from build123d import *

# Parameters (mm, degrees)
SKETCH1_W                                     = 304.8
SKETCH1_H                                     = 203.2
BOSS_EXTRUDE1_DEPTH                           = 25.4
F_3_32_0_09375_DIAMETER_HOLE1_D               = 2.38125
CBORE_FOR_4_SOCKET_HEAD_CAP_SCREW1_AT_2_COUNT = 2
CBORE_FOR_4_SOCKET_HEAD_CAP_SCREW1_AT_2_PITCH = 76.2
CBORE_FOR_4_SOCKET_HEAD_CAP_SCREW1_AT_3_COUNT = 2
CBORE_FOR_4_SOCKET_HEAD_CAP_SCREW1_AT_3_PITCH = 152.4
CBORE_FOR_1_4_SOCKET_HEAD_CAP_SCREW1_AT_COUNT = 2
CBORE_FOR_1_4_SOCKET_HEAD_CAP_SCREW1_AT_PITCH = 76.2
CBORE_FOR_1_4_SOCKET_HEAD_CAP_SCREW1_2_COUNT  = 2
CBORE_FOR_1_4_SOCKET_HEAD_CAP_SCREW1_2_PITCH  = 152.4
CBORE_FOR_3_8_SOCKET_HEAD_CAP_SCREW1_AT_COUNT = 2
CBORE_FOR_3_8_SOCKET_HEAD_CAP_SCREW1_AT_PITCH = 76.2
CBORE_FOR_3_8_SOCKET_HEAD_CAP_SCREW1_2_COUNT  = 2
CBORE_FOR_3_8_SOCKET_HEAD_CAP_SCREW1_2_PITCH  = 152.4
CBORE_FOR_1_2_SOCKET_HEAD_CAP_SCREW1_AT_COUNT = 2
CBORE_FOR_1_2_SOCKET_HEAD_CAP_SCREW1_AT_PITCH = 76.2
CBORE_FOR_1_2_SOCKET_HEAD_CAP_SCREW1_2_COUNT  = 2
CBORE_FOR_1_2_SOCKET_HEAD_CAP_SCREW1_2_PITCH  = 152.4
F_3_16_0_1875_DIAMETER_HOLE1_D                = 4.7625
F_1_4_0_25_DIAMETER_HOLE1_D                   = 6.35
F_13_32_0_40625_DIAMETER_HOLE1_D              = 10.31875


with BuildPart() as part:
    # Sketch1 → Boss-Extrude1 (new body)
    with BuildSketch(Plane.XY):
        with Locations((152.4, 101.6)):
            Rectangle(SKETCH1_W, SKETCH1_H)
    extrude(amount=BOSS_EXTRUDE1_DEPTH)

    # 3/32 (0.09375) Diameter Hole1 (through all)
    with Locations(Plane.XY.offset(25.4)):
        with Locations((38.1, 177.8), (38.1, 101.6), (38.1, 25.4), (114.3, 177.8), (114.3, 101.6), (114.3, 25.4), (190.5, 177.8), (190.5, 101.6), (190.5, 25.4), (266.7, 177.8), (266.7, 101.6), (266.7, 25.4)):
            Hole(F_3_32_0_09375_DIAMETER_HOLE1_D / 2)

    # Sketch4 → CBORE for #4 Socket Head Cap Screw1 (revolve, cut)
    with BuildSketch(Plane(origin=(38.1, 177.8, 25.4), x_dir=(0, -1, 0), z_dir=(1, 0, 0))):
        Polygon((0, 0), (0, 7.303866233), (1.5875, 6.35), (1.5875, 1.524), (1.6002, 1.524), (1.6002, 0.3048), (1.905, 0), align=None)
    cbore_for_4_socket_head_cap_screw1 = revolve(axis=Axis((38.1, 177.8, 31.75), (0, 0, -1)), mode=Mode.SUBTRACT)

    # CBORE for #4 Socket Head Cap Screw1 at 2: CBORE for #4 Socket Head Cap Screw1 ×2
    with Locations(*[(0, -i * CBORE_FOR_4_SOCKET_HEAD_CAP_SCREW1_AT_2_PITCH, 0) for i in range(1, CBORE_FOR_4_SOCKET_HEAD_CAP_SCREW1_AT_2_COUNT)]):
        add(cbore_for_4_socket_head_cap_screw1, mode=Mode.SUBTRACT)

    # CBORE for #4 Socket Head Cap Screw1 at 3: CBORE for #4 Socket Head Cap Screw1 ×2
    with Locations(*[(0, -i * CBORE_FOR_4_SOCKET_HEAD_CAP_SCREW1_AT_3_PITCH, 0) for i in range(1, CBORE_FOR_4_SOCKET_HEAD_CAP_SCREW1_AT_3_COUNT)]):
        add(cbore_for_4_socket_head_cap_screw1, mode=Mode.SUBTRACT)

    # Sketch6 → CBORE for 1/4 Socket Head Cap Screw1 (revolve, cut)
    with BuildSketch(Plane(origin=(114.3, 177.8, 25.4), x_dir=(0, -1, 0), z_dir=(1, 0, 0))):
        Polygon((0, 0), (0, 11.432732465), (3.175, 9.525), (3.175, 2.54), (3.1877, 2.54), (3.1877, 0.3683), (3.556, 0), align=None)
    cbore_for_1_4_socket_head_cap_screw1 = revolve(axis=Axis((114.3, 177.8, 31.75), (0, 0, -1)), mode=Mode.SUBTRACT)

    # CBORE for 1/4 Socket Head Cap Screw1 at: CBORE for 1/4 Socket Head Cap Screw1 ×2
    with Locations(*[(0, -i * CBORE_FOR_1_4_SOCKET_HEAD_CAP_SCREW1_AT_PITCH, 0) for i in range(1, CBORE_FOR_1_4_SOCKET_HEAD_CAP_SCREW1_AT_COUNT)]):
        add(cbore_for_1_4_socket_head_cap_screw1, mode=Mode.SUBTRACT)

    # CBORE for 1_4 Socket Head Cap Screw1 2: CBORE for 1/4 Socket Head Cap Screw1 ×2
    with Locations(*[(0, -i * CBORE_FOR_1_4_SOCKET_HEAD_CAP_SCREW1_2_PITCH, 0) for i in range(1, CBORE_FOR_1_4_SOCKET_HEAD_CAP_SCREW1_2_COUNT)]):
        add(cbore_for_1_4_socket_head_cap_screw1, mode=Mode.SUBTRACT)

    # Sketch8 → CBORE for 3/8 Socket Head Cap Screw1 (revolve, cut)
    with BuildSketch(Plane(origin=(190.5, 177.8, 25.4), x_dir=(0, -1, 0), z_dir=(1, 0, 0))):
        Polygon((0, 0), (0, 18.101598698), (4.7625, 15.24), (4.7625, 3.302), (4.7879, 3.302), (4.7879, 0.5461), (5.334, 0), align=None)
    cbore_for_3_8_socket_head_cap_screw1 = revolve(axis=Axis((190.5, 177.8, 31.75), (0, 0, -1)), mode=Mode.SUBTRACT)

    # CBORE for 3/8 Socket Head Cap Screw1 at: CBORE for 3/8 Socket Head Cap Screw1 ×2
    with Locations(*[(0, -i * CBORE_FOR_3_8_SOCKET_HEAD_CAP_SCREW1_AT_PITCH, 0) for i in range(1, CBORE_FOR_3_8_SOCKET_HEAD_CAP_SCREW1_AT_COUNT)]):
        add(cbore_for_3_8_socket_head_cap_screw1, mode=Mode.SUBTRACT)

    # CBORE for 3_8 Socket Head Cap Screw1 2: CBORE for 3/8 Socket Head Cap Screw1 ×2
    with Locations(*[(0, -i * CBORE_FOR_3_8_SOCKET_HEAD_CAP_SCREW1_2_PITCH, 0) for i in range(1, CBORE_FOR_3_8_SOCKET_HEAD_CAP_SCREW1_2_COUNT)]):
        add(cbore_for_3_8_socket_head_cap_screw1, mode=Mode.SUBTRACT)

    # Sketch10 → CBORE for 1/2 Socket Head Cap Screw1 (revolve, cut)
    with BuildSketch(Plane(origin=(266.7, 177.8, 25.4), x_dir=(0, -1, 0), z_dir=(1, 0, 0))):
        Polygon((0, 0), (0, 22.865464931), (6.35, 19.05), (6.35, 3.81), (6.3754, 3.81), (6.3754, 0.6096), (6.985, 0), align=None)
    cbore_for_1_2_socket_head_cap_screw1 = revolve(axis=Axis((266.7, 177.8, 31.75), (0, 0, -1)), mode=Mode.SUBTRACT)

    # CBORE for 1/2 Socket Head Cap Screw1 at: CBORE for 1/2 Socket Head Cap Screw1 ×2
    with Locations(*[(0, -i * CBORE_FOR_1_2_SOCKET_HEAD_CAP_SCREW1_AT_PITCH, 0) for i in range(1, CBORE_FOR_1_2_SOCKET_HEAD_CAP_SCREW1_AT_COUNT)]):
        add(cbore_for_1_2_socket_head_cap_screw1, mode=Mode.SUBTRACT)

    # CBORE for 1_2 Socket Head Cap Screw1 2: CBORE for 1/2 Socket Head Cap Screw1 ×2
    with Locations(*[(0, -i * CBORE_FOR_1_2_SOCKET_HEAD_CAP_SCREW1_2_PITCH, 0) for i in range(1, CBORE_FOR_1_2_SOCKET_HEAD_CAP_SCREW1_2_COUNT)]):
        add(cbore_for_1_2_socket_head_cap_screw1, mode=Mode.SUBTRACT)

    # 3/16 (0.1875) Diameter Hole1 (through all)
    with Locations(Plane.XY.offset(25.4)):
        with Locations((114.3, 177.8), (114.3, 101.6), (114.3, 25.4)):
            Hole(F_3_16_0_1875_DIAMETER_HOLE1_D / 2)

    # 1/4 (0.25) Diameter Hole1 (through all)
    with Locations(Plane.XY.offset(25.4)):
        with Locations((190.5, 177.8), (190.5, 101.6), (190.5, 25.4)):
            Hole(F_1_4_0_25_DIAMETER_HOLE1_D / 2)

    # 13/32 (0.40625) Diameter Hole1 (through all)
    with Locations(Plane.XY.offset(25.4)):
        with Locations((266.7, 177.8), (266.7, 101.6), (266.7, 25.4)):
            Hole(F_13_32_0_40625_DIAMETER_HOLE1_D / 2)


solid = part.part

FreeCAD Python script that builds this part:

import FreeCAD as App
import Part
import Sketcher
from FreeCAD import Vector
Q = App.Units.Quantity


def add_polygon(sketch, points):
    """Adds a closed chain of lines whose ends are joined by coincident constraints."""
    first, n = sketch.GeometryCount, len(points)
    for a, b in zip(points, points[1:] + points[:1]):
        sketch.addGeometry(Part.LineSegment(App.Vector(*a, 0), App.Vector(*b, 0)), False)
    for i in range(n):
        sketch.addConstraint(Sketcher.Constraint("Coincident", first + i, 2, first + (i + 1) % n, 1))

doc = App.newDocument("Part")
body = doc.addObject("PartDesign::Body", "Body")

# Sketch on XY plane
sketch1 = body.newObject("Sketcher::SketchObject", "Sketch")
sketch1.AttachmentSupport = (doc.getObject("XY_Plane"), [""])
sketch1.MapMode = "FlatFace"
add_polygon(sketch1, [(0, 203), (0, 0), (305, 0), (305, 203)])  # lines 0-3
sketch1.addConstraint(Sketcher.Constraint("Vertical", 0))
sketch1.addConstraint(Sketcher.Constraint("Horizontal", 1))
sketch1.addConstraint(Sketcher.Constraint("Vertical", 2))
sketch1.addConstraint(Sketcher.Constraint("Horizontal", 3))
sketch1.addConstraint(Sketcher.Constraint("Coincident", 0, 2, -1, 1))
sketch1.addConstraint(Sketcher.Constraint("DistanceX", 1, 1, 1, 2, Q("12 in")))
sketch1.addConstraint(Sketcher.Constraint("DistanceY", 0, 2, 0, 1, Q("8 in")))
pad1 = body.newObject("PartDesign::Pad", "Pad")
pad1.Profile = sketch1
pad1.Length = Q("1 in")

# Sketch on XY plane
sketch2 = body.newObject("Sketcher::SketchObject", "Sketch001")
sketch2.AttachmentSupport = (doc.getObject("XY_Plane"), [""])
sketch2.MapMode = "FlatFace"
sketch2.AttachmentOffset = App.Placement(Vector(0, 0, 1 * 25.4), App.Rotation())
sketch2.addGeometry(Part.Circle(Vector(38.1, 177.8, 0), Vector(0, 0, 1), 1.2), False)
sketch2.addGeometry(Part.Circle(Vector(38.1, 101.6, 0), Vector(0, 0, 1), 1.2), False)
sketch2.addGeometry(Part.Circle(Vector(38.1, 25.4, 0), Vector(0, 0, 1), 1.2), False)
sketch2.addGeometry(Part.Circle(Vector(114.3, 177.8, 0), Vector(0, 0, 1), 1.2), False)
sketch2.addGeometry(Part.Circle(Vector(114.3, 101.6, 0), Vector(0, 0, 1), 1.2), False)
sketch2.addGeometry(Part.Circle(Vector(114.3, 25.4, 0), Vector(0, 0, 1), 1.2), False)
sketch2.addGeometry(Part.Circle(Vector(190.5, 177.8, 0), Vector(0, 0, 1), 1.2), False)
sketch2.addGeometry(Part.Circle(Vector(190.5, 101.6, 0), Vector(0, 0, 1), 1.2), False)
sketch2.addGeometry(Part.Circle(Vector(190.5, 25.4, 0), Vector(0, 0, 1), 1.2), False)
sketch2.addGeometry(Part.Circle(Vector(266.7, 177.8, 0), Vector(0, 0, 1), 1.2), False)
sketch2.addGeometry(Part.Circle(Vector(266.7, 101.6, 0), Vector(0, 0, 1), 1.2), False)
sketch2.addGeometry(Part.Circle(Vector(266.7, 25.4, 0), Vector(0, 0, 1), 1.2), False)
sketch2.addConstraint(Sketcher.Constraint("Equal", 0, 1))
sketch2.addConstraint(Sketcher.Constraint("Equal", 1, 2))
sketch2.addConstraint(Sketcher.Constraint("Equal", 2, 3))
sketch2.addConstraint(Sketcher.Constraint("Equal", 3, 4))
sketch2.addConstraint(Sketcher.Constraint("Equal", 4, 5))
sketch2.addConstraint(Sketcher.Constraint("Equal", 5, 6))
sketch2.addConstraint(Sketcher.Constraint("Equal", 6, 7))
sketch2.addConstraint(Sketcher.Constraint("Equal", 7, 8))
sketch2.addConstraint(Sketcher.Constraint("Equal", 8, 9))
sketch2.addConstraint(Sketcher.Constraint("Equal", 9, 10))
sketch2.addConstraint(Sketcher.Constraint("Equal", 10, 11))
sketch2.addConstraint(Sketcher.Constraint("Horizontal", 0, 3, 3, 3))
sketch2.addConstraint(Sketcher.Constraint("Horizontal", 1, 3, 4, 3))
sketch2.addConstraint(Sketcher.Constraint("Horizontal", 2, 3, 5, 3))
sketch2.addConstraint(Sketcher.Constraint("Horizontal", 3, 3, 6, 3))
sketch2.addConstraint(Sketcher.Constraint("Horizontal", 4, 3, 7, 3))
sketch2.addConstraint(Sketcher.Constraint("Horizontal", 5, 3, 8, 3))
sketch2.addConstraint(Sketcher.Constraint("Horizontal", 6, 3, 9, 3))
sketch2.addConstraint(Sketcher.Constraint("Horizontal", 7, 3, 10, 3))
sketch2.addConstraint(Sketcher.Constraint("Horizontal", 8, 3, 11, 3))
sketch2.addConstraint(Sketcher.Constraint("Vertical", 0, 3, 1, 3))
sketch2.addConstraint(Sketcher.Constraint("Vertical", 1, 3, 2, 3))
sketch2.addConstraint(Sketcher.Constraint("Vertical", 3, 3, 4, 3))
sketch2.addConstraint(Sketcher.Constraint("Vertical", 4, 3, 5, 3))
sketch2.addConstraint(Sketcher.Constraint("Vertical", 6, 3, 7, 3))
sketch2.addConstraint(Sketcher.Constraint("Vertical", 7, 3, 8, 3))
sketch2.addConstraint(Sketcher.Constraint("Vertical", 9, 3, 10, 3))
sketch2.addConstraint(Sketcher.Constraint("Vertical", 10, 3, 11, 3))
sketch2.addConstraint(Sketcher.Constraint("Diameter", 0, Q("0.09375 in")))
sketch2.addConstraint(Sketcher.Constraint("DistanceY", -1, 1, 0, 3, Q("7 in")))
sketch2.addConstraint(Sketcher.Constraint("DistanceY", -1, 1, 1, 3, Q("4 in")))
sketch2.addConstraint(Sketcher.Constraint("DistanceY", -1, 1, 2, 3, Q("1 in")))
sketch2.addConstraint(Sketcher.Constraint("DistanceX", 0, 3, 3, 3, Q("3 in")))
sketch2.addConstraint(Sketcher.Constraint("DistanceX", 3, 3, 6, 3, Q("3 in")))
sketch2.addConstraint(Sketcher.Constraint("DistanceX", 6, 3, 9, 3, Q("3 in")))
sketch2.addConstraint(Sketcher.Constraint("DistanceX", -1, 1, 0, 3, Q("1.5 in")))
doc.recompute()
hole = body.newObject("PartDesign::Hole", "Hole")
hole.Profile = sketch2
hole.ThreadType = "None"
hole.Diameter = Q("0.09375 in")
hole.DepthType = "ThroughAll"

# Sketch on YZ plane
sketch3 = body.newObject("Sketcher::SketchObject", "Sketch002")
sketch3.AttachmentSupport = (doc.getObject("YZ_Plane"), [""])
sketch3.MapMode = "FlatFace"
sketch3.AttachmentOffset = App.Placement(Vector(0, 0, 1.5 * 25.4), App.Rotation())
add_polygon(sketch3, [(177.8, 18.096), (177.8, 25.4), (175.895, 25.4), (176.2, 25.095), (176.2, 23.876), (176.213, 23.876), (176.213, 19.05)])  # lines 0-6
sketch3.addGeometry(Part.LineSegment(Vector(177.8, 25.4, 0), Vector(177.8, 18.096, 0)), True)  # axis
sketch3.addConstraint(Sketcher.Constraint("Vertical", 0))
sketch3.addConstraint(Sketcher.Constraint("Horizontal", 1))
sketch3.addConstraint(Sketcher.Constraint("Vertical", 3))
sketch3.addConstraint(Sketcher.Constraint("Horizontal", 4))
sketch3.addConstraint(Sketcher.Constraint("Vertical", 5))
sketch3.addConstraint(Sketcher.Constraint("Vertical", 7))
sketch3.addConstraint(Sketcher.Constraint("Coincident", 7, 1, 0, 2))
sketch3.addConstraint(Sketcher.Constraint("Equal", 0, 7))
sketch3.addConstraint(Sketcher.Constraint("DistanceX", -1, 1, 0, 2, Q("7 in")))
sketch3.addConstraint(Sketcher.Constraint("DistanceY", -1, 1, 0, 2, Q("1 in")))
sketch3.addConstraint(Sketcher.Constraint("Angle", 2, Q("-45 deg")))
sketch3.addConstraint(Sketcher.Constraint("Angle", 6, Q("-31 deg")))
sketch3.addConstraint(Sketcher.Constraint("DistanceY", 5, 2, 5, 1, Q("0.19 in")))
sketch3.addConstraint(Sketcher.Constraint("DistanceX", 1, 2, 1, 1, Q("0.075 in")))
sketch3.addConstraint(Sketcher.Constraint("DistanceY", 3, 2, 3, 1, Q("0.048 in")))
sketch3.addConstraint(Sketcher.Constraint("DistanceY", -1, 1, 3, 2, Q("0.94 in")))
sketch3.addConstraint(Sketcher.Constraint("DistanceX", 4, 1, 4, 2, Q("0.0005 in")))
groove = body.newObject("PartDesign::Groove", "Groove")
groove.Profile = sketch3
groove.ReferenceAxis = (sketch3, ["Axis0"])
groove.Angle = 360
doc.recompute()

linearpattern = body.newObject("PartDesign::LinearPattern", "LinearPattern")
linearpattern.Originals = [groove]
linearpattern.Direction = (doc.getObject("Y_Axis"), [""])
linearpattern.Mode = "offset"
linearpattern.Offset = Q("3 in")
linearpattern.Occurrences = 2
linearpattern.Reversed = True
body.Tip = linearpattern
doc.recompute()

linearpattern2 = body.newObject("PartDesign::LinearPattern", "LinearPattern001")
linearpattern2.Originals = [groove]
linearpattern2.Direction = (doc.getObject("Y_Axis"), [""])
linearpattern2.Mode = "offset"
linearpattern2.Offset = Q("6 in")
linearpattern2.Occurrences = 2
linearpattern2.Reversed = True
body.Tip = linearpattern2

# Sketch on YZ plane
sketch4 = body.newObject("Sketcher::SketchObject", "Sketch003")
sketch4.AttachmentSupport = (doc.getObject("YZ_Plane"), [""])
sketch4.MapMode = "FlatFace"
sketch4.AttachmentOffset = App.Placement(Vector(0, 0, 4.5 * 25.4), App.Rotation())
add_polygon(sketch4, [(177.8, 13.967), (177.8, 25.4), (174.244, 25.4), (174.612, 25.032), (174.612, 22.86), (174.625, 22.86), (174.625, 15.875)])  # lines 0-6
sketch4.addGeometry(Part.LineSegment(Vector(177.8, 25.4, 0), Vector(177.8, 13.967, 0)), True)  # axis
sketch4.addConstraint(Sketcher.Constraint("Vertical", 0))
sketch4.addConstraint(Sketcher.Constraint("Horizontal", 1))
sketch4.addConstraint(Sketcher.Constraint("Vertical", 3))
sketch4.addConstraint(Sketcher.Constraint("Horizontal", 4))
sketch4.addConstraint(Sketcher.Constraint("Vertical", 5))
sketch4.addConstraint(Sketcher.Constraint("Vertical", 7))
sketch4.addConstraint(Sketcher.Constraint("Coincident", 7, 1, 0, 2))
sketch4.addConstraint(Sketcher.Constraint("Equal", 0, 7))
sketch4.addConstraint(Sketcher.Constraint("DistanceX", -1, 1, 0, 2, Q("7 in")))
sketch4.addConstraint(Sketcher.Constraint("DistanceY", -1, 1, 0, 2, Q("1 in")))
sketch4.addConstraint(Sketcher.Constraint("Angle", 2, Q("-45 deg")))
sketch4.addConstraint(Sketcher.Constraint("Angle", 6, Q("-31 deg")))
sketch4.addConstraint(Sketcher.Constraint("DistanceX", 1, 2, 1, 1, Q("0.14 in")))
sketch4.addConstraint(Sketcher.Constraint("DistanceY", -1, 1, 3, 2, Q("0.9 in")))
sketch4.addConstraint(Sketcher.Constraint("DistanceY", 5, 2, 5, 1, Q("0.275 in")))
sketch4.addConstraint(Sketcher.Constraint("DistanceX", 4, 1, 4, 2, Q("0.0005 in")))
sketch4.addConstraint(Sketcher.Constraint("DistanceY", 3, 2, 3, 1, Q("0.0855 in")))
groove2 = body.newObject("PartDesign::Groove", "Groove001")
groove2.Profile = sketch4
groove2.ReferenceAxis = (sketch4, ["Axis0"])
groove2.Angle = 360
doc.recompute()

linearpattern3 = body.newObject("PartDesign::LinearPattern", "LinearPattern002")
linearpattern3.Originals = [groove2]
linearpattern3.Direction = (doc.getObject("Y_Axis"), [""])
linearpattern3.Mode = "offset"
linearpattern3.Offset = Q("3 in")
linearpattern3.Occurrences = 2
linearpattern3.Reversed = True
body.Tip = linearpattern3
doc.recompute()

linearpattern4 = body.newObject("PartDesign::LinearPattern", "LinearPattern003")
linearpattern4.Originals = [groove2]
linearpattern4.Direction = (doc.getObject("Y_Axis"), [""])
linearpattern4.Mode = "offset"
linearpattern4.Offset = Q("6 in")
linearpattern4.Occurrences = 2
linearpattern4.Reversed = True
body.Tip = linearpattern4

# Sketch on YZ plane
sketch5 = body.newObject("Sketcher::SketchObject", "Sketch004")
sketch5.AttachmentSupport = (doc.getObject("YZ_Plane"), [""])
sketch5.MapMode = "FlatFace"
sketch5.AttachmentOffset = App.Placement(Vector(0, 0, 7.5 * 25.4), App.Rotation())
add_polygon(sketch5, [(177.8, 7.298), (177.8, 25.4), (172.466, 25.4), (173.012, 24.854), (173.012, 22.098), (173.037, 22.098), (173.037, 10.16)])  # lines 0-6
sketch5.addGeometry(Part.LineSegment(Vector(177.8, 25.4, 0), Vector(177.8, 7.298, 0)), True)  # axis
sketch5.addConstraint(Sketcher.Constraint("Vertical", 0))
sketch5.addConstraint(Sketcher.Constraint("Horizontal", 1))
sketch5.addConstraint(Sketcher.Constraint("Vertical", 3))
sketch5.addConstraint(Sketcher.Constraint("Horizontal", 4))
sketch5.addConstraint(Sketcher.Constraint("Vertical", 5))
sketch5.addConstraint(Sketcher.Constraint("Vertical", 7))
sketch5.addConstraint(Sketcher.Constraint("Coincident", 7, 1, 0, 2))
sketch5.addConstraint(Sketcher.Constraint("Equal", 0, 7))
sketch5.addConstraint(Sketcher.Constraint("DistanceX", -1, 1, 0, 2, Q("7 in")))
sketch5.addConstraint(Sketcher.Constraint("DistanceY", -1, 1, 0, 2, Q("1 in")))
sketch5.addConstraint(Sketcher.Constraint("Angle", 2, Q("-45 deg")))
sketch5.addConstraint(Sketcher.Constraint("Angle", 6, Q("-31 deg")))
sketch5.addConstraint(Sketcher.Constraint("DistanceX", 1, 2, 1, 1, Q("0.21 in")))
sketch5.addConstraint(Sketcher.Constraint("DistanceY", 5, 2, 5, 1, Q("0.47 in")))
sketch5.addConstraint(Sketcher.Constraint("DistanceY", -1, 1, 5, 2, Q("0.4 in")))
sketch5.addConstraint(Sketcher.Constraint("DistanceX", 4, 1, 4, 2, Q("0.001 in")))
sketch5.addConstraint(Sketcher.Constraint("DistanceY", 3, 2, 3, 1, Q("0.1085 in")))
groove3 = body.newObject("PartDesign::Groove", "Groove002")
groove3.Profile = sketch5
groove3.ReferenceAxis = (sketch5, ["Axis0"])
groove3.Angle = 360
doc.recompute()

linearpattern5 = body.newObject("PartDesign::LinearPattern", "LinearPattern004")
linearpattern5.Originals = [groove3]
linearpattern5.Direction = (doc.getObject("Y_Axis"), [""])
linearpattern5.Mode = "offset"
linearpattern5.Offset = Q("3 in")
linearpattern5.Occurrences = 2
linearpattern5.Reversed = True
body.Tip = linearpattern5
doc.recompute()

linearpattern6 = body.newObject("PartDesign::LinearPattern", "LinearPattern005")
linearpattern6.Originals = [groove3]
linearpattern6.Direction = (doc.getObject("Y_Axis"), [""])
linearpattern6.Mode = "offset"
linearpattern6.Offset = Q("6 in")
linearpattern6.Occurrences = 2
linearpattern6.Reversed = True
body.Tip = linearpattern6

# Sketch on YZ plane
sketch6 = body.newObject("Sketcher::SketchObject", "Sketch005")
sketch6.AttachmentSupport = (doc.getObject("YZ_Plane"), [""])
sketch6.MapMode = "FlatFace"
sketch6.AttachmentOffset = App.Placement(Vector(0, 0, 10.5 * 25.4), App.Rotation())
add_polygon(sketch6, [(177.8, 2.535), (177.8, 25.4), (170.815, 25.4), (171.425, 24.79), (171.425, 21.59), (171.45, 21.59), (171.45, 6.35)])  # lines 0-6
sketch6.addGeometry(Part.LineSegment(Vector(177.8, 25.4, 0), Vector(177.8, 2.535, 0)), True)  # axis
sketch6.addConstraint(Sketcher.Constraint("Vertical", 0))
sketch6.addConstraint(Sketcher.Constraint("Horizontal", 1))
sketch6.addConstraint(Sketcher.Constraint("Vertical", 3))
sketch6.addConstraint(Sketcher.Constraint("Horizontal", 4))
sketch6.addConstraint(Sketcher.Constraint("Vertical", 5))
sketch6.addConstraint(Sketcher.Constraint("Vertical", 7))
sketch6.addConstraint(Sketcher.Constraint("Coincident", 7, 1, 0, 2))
sketch6.addConstraint(Sketcher.Constraint("Equal", 0, 7))
sketch6.addConstraint(Sketcher.Constraint("DistanceY", 5, 2, 5, 1, Q("0.6 in")))
sketch6.addConstraint(Sketcher.Constraint("DistanceX", -1, 1, 0, 2, Q("7 in")))
sketch6.addConstraint(Sketcher.Constraint("DistanceY", -1, 1, 0, 2, Q("1 in")))
sketch6.addConstraint(Sketcher.Constraint("Angle", 2, Q("-45 deg")))
sketch6.addConstraint(Sketcher.Constraint("Angle", 6, Q("-31 deg")))
sketch6.addConstraint(Sketcher.Constraint("DistanceX", 1, 2, 1, 1, Q("0.275 in")))
sketch6.addConstraint(Sketcher.Constraint("DistanceX", 4, 1, 4, 2, Q("0.001 in")))
sketch6.addConstraint(Sketcher.Constraint("DistanceY", 3, 2, 3, 1, Q("0.126 in")))
sketch6.addConstraint(Sketcher.Constraint("DistanceY", -1, 1, 3, 2, Q("0.85 in")))
groove4 = body.newObject("PartDesign::Groove", "Groove003")
groove4.Profile = sketch6
groove4.ReferenceAxis = (sketch6, ["Axis0"])
groove4.Angle = 360
doc.recompute()

linearpattern7 = body.newObject("PartDesign::LinearPattern", "LinearPattern006")
linearpattern7.Originals = [groove4]
linearpattern7.Direction = (doc.getObject("Y_Axis"), [""])
linearpattern7.Mode = "offset"
linearpattern7.Offset = Q("3 in")
linearpattern7.Occurrences = 2
linearpattern7.Reversed = True
body.Tip = linearpattern7
doc.recompute()

linearpattern8 = body.newObject("PartDesign::LinearPattern", "LinearPattern007")
linearpattern8.Originals = [groove4]
linearpattern8.Direction = (doc.getObject("Y_Axis"), [""])
linearpattern8.Mode = "offset"
linearpattern8.Offset = Q("6 in")
linearpattern8.Occurrences = 2
linearpattern8.Reversed = True
body.Tip = linearpattern8

# Sketch on XY plane
sketch7 = body.newObject("Sketcher::SketchObject", "Sketch006")
sketch7.AttachmentSupport = (doc.getObject("XY_Plane"), [""])
sketch7.MapMode = "FlatFace"
sketch7.AttachmentOffset = App.Placement(Vector(0, 0, 1 * 25.4), App.Rotation())
sketch7.addGeometry(Part.Circle(Vector(114.3, 177.8, 0), Vector(0, 0, 1), 2.4), False)
sketch7.addGeometry(Part.Circle(Vector(114.3, 101.6, 0), Vector(0, 0, 1), 2.4), False)
sketch7.addGeometry(Part.Circle(Vector(114.3, 25.4, 0), Vector(0, 0, 1), 2.4), False)
sketch7.addConstraint(Sketcher.Constraint("Equal", 0, 1))
sketch7.addConstraint(Sketcher.Constraint("Equal", 1, 2))
sketch7.addConstraint(Sketcher.Constraint("Vertical", 0, 3, 1, 3))
sketch7.addConstraint(Sketcher.Constraint("Vertical", 1, 3, 2, 3))
sketch7.addConstraint(Sketcher.Constraint("Diameter", 0, Q("0.1875 in")))
sketch7.addConstraint(Sketcher.Constraint("DistanceY", -1, 1, 0, 3, Q("7 in")))
sketch7.addConstraint(Sketcher.Constraint("DistanceY", -1, 1, 1, 3, Q("4 in")))
sketch7.addConstraint(Sketcher.Constraint("DistanceY", -1, 1, 2, 3, Q("1 in")))
sketch7.addConstraint(Sketcher.Constraint("DistanceX", -1, 1, 0, 3, Q("4.5 in")))
doc.recompute()
hole2 = body.newObject("PartDesign::Hole", "Hole001")
hole2.Profile = sketch7
hole2.ThreadType = "None"
hole2.Diameter = Q("0.1875 in")
hole2.DepthType = "ThroughAll"

# Sketch on XY plane
sketch8 = body.newObject("Sketcher::SketchObject", "Sketch007")
sketch8.AttachmentSupport = (doc.getObject("XY_Plane"), [""])
sketch8.MapMode = "FlatFace"
sketch8.AttachmentOffset = App.Placement(Vector(0, 0, 1 * 25.4), App.Rotation())
sketch8.addGeometry(Part.Circle(Vector(190.5, 177.8, 0), Vector(0, 0, 1), 3.2), False)
sketch8.addGeometry(Part.Circle(Vector(190.5, 101.6, 0), Vector(0, 0, 1), 3.2), False)
sketch8.addGeometry(Part.Circle(Vector(190.5, 25.4, 0), Vector(0, 0, 1), 3.2), False)
sketch8.addConstraint(Sketcher.Constraint("Equal", 0, 1))
sketch8.addConstraint(Sketcher.Constraint("Equal", 1, 2))
sketch8.addConstraint(Sketcher.Constraint("Vertical", 0, 3, 1, 3))
sketch8.addConstraint(Sketcher.Constraint("Vertical", 1, 3, 2, 3))
sketch8.addConstraint(Sketcher.Constraint("Diameter", 0, Q("0.25 in")))
sketch8.addConstraint(Sketcher.Constraint("DistanceY", -1, 1, 0, 3, Q("7 in")))
sketch8.addConstraint(Sketcher.Constraint("DistanceY", -1, 1, 1, 3, Q("4 in")))
sketch8.addConstraint(Sketcher.Constraint("DistanceY", -1, 1, 2, 3, Q("1 in")))
sketch8.addConstraint(Sketcher.Constraint("DistanceX", -1, 1, 0, 3, Q("7.5 in")))
doc.recompute()
hole3 = body.newObject("PartDesign::Hole", "Hole002")
hole3.Profile = sketch8
hole3.ThreadType = "None"
hole3.Diameter = Q("0.25 in")
hole3.DepthType = "ThroughAll"

# Sketch on XY plane
sketch9 = body.newObject("Sketcher::SketchObject", "Sketch008")
sketch9.AttachmentSupport = (doc.getObject("XY_Plane"), [""])
sketch9.MapMode = "FlatFace"
sketch9.AttachmentOffset = App.Placement(Vector(0, 0, 1 * 25.4), App.Rotation())
sketch9.addGeometry(Part.Circle(Vector(267, 178, 0), Vector(0, 0, 1), 5), False)
sketch9.addGeometry(Part.Circle(Vector(267, 102, 0), Vector(0, 0, 1), 5), False)
sketch9.addGeometry(Part.Circle(Vector(267, 25, 0), Vector(0, 0, 1), 5), False)
sketch9.addConstraint(Sketcher.Constraint("Equal", 0, 1))
sketch9.addConstraint(Sketcher.Constraint("Equal", 1, 2))
sketch9.addConstraint(Sketcher.Constraint("Vertical", 0, 3, 1, 3))
sketch9.addConstraint(Sketcher.Constraint("Vertical", 1, 3, 2, 3))
sketch9.addConstraint(Sketcher.Constraint("Diameter", 0, Q("0.40625 in")))
sketch9.addConstraint(Sketcher.Constraint("DistanceY", -1, 1, 0, 3, Q("7 in")))
sketch9.addConstraint(Sketcher.Constraint("DistanceY", -1, 1, 1, 3, Q("4 in")))
sketch9.addConstraint(Sketcher.Constraint("DistanceY", -1, 1, 2, 3, Q("1 in")))
sketch9.addConstraint(Sketcher.Constraint("DistanceX", -1, 1, 0, 3, Q("10.5 in")))
doc.recompute()
hole4 = body.newObject("PartDesign::Hole", "Hole003")
hole4.Profile = sketch9
hole4.ThreadType = "None"
hole4.Diameter = Q("0.40625 in")
hole4.DepthType = "ThroughAll"

doc.recompute()
